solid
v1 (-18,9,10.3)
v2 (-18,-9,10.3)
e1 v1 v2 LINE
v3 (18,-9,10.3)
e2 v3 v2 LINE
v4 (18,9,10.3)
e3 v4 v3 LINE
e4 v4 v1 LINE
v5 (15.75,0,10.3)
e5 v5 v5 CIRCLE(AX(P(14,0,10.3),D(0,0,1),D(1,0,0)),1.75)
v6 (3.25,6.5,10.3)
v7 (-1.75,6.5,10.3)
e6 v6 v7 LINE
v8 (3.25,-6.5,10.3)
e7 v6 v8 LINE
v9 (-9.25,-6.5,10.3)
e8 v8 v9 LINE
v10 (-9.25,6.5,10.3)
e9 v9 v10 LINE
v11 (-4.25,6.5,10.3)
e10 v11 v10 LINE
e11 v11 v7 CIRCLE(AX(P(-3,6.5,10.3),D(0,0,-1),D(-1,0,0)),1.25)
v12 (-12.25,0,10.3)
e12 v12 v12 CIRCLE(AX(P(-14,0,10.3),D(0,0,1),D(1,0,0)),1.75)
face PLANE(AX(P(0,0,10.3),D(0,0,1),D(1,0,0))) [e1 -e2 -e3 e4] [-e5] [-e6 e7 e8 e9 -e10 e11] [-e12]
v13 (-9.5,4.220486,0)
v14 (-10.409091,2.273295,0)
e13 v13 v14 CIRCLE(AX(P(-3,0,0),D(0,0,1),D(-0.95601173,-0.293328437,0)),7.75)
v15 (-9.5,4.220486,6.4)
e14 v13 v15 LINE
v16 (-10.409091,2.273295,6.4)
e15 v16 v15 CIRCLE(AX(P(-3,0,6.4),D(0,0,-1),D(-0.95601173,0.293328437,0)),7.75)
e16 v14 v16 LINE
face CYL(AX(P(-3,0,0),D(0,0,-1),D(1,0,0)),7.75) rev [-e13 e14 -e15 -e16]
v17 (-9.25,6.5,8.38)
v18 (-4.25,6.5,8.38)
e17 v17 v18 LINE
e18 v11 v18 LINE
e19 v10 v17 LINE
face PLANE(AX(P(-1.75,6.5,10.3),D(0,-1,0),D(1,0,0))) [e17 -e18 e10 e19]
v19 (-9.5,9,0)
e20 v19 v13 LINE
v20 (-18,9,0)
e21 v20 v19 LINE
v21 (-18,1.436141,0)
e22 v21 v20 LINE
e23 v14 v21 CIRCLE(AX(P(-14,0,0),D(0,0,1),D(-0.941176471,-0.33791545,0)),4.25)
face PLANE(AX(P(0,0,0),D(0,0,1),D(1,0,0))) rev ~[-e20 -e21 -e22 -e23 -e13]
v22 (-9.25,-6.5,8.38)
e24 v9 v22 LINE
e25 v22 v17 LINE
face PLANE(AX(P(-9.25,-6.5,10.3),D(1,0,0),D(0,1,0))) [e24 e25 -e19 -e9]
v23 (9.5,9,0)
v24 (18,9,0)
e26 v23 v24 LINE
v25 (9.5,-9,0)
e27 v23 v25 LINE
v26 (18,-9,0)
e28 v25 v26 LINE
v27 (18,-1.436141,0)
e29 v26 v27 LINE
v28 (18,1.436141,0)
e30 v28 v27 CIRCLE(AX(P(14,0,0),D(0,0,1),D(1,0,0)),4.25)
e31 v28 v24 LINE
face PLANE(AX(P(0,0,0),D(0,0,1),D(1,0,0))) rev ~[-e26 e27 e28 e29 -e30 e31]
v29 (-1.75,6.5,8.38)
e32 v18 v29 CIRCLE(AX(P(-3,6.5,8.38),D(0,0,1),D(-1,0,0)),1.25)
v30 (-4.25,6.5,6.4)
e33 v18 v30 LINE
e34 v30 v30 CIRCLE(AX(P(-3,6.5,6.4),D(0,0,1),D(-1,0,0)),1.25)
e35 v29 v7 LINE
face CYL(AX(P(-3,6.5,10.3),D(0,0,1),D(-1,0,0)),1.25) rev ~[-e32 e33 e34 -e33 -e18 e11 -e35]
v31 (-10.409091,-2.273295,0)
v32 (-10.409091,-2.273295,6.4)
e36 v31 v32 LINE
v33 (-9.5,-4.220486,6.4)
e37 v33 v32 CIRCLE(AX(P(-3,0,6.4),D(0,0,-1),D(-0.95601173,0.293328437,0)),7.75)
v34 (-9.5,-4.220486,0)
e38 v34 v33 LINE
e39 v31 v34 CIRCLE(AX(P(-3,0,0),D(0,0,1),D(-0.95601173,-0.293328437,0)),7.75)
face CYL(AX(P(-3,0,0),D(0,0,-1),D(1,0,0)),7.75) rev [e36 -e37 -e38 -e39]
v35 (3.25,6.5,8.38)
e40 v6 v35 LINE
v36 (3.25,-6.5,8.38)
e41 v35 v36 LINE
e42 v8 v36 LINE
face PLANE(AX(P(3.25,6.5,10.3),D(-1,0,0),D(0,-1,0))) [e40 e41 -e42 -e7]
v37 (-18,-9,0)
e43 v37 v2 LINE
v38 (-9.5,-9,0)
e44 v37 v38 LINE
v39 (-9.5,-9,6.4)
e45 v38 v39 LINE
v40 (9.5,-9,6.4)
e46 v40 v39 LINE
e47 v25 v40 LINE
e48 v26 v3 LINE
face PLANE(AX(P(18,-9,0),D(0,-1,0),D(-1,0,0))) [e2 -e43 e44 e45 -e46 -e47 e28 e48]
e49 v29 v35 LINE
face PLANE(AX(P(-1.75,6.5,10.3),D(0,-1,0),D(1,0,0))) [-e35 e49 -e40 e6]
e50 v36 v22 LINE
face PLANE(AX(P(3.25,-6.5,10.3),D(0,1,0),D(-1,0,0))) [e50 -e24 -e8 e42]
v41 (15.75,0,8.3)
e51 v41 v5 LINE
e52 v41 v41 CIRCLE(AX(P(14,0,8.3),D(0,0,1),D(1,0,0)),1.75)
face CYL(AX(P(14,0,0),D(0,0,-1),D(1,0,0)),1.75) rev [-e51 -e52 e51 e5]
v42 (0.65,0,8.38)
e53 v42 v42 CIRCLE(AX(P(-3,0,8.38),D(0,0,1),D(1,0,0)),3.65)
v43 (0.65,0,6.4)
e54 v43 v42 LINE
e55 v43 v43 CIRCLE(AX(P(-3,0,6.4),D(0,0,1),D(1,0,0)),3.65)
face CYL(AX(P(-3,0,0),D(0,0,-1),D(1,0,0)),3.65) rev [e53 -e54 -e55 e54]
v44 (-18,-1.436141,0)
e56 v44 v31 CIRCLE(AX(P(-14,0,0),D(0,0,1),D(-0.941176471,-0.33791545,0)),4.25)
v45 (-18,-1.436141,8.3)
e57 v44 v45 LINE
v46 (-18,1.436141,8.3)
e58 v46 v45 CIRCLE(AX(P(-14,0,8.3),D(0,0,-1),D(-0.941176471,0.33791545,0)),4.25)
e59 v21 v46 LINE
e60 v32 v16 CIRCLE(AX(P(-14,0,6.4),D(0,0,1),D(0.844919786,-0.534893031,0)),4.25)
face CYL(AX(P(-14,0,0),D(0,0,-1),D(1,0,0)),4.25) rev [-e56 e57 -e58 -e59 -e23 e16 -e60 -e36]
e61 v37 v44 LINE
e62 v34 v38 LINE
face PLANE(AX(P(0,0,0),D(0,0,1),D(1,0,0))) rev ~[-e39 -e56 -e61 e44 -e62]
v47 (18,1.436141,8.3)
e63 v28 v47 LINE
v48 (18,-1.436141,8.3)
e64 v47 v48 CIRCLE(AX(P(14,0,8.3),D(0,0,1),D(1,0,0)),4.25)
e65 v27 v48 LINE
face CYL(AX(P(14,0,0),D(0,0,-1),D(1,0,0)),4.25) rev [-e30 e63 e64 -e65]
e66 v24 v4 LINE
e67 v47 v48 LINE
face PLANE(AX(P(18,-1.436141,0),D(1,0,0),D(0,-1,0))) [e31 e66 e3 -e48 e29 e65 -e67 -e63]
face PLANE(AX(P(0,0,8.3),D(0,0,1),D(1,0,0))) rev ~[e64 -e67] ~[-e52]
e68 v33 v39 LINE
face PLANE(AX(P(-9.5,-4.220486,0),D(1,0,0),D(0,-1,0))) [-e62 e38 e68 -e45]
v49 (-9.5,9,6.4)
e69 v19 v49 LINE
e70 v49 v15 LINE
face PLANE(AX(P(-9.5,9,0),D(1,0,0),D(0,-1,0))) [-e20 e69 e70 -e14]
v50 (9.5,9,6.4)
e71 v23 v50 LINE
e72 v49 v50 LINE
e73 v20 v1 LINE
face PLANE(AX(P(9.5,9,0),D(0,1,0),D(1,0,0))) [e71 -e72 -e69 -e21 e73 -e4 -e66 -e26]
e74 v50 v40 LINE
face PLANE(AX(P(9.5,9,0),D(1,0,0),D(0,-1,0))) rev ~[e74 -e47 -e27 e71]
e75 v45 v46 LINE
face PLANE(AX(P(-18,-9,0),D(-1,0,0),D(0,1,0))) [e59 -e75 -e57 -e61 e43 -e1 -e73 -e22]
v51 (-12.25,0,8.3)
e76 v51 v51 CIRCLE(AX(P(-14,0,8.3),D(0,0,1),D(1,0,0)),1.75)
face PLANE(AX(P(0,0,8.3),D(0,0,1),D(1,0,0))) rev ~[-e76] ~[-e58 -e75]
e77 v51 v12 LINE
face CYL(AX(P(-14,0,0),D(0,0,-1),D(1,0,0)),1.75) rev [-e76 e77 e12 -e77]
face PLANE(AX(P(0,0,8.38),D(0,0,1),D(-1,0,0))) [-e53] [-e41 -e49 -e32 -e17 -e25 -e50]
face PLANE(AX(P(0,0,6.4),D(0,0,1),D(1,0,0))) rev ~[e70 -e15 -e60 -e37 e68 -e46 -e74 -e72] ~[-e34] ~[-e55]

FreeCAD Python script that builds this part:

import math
import FreeCAD as App
import Part
import Sketcher
from FreeCAD import Vector
Q = App.Units.Quantity


def add_polygon(sketch, points):
    """Adds a closed chain of lines whose ends are joined by coincident constraints."""
    first, n = sketch.GeometryCount, len(points)
    for a, b in zip(points, points[1:] + points[:1]):
        sketch.addGeometry(Part.LineSegment(App.Vector(*a, 0), App.Vector(*b, 0)), False)
    for i in range(n):
        sketch.addConstraint(Sketcher.Constraint("Coincident", first + i, 2, first + (i + 1) % n, 1))

doc = App.newDocument("Part")
params = doc.addObject("Spreadsheet::Sheet", "Params")
for row, (alias, value) in enumerate([
    ("sketch1_diameter", "3.5 mm"),
    ("sketch1_diameter2", "7.3 mm"),
    ("sketch1_width", "36 mm"),
    ("sketch1_height", "18 mm"),
    ("pad1_length", "10.3 mm"),
    ("sketch2_diameter", "3.5 mm"),
    ("sketch2_radius", "4.25 mm"),
    ("sketch2_width", "4 mm"),
    ("pocket1_length", "8.3 mm"),
    ("sketch3_diameter", "7.3 mm"),
    ("sketch3_radius", "7.75 mm"),
    ("sketch3_radius2", "4.25 mm"),
    ("pocket2_length", "6.4 mm"),
    ("sketch4_height", "18 mm"),
    ("sketch4_radius", "7.75 mm"),
    ("sketch4_width", "19 mm"),
    ("pocket3_length", "6.4 mm"),
    ("sketch5_height", "13 mm"),
    ("sketch5_width", "12.5 mm"),
    ("sketch5_diameter", "7.3 mm"),
    ("pocket4_length", "1.92 mm"),
    ("sketch6_diameter", "2.5 mm"),
    ("pocket5_length", "9 mm"),
], start=1):
    params.set(f"A{row}", alias)
    params.set(f"B{row}", "=" + value)
    params.setAlias(f"B{row}", alias)

body = doc.addObject("PartDesign::Body", "Body")

sketch1 = doc.addObject("Sketcher::SketchObject", "Sketch")
body.addObject(sketch1)
sketch1.AttachmentSupport = (doc.XY_Plane, [""])
sketch1.MapMode = "FlatFace"
add_polygon(sketch1, [(18, -9), (18, 9), (-18, 9), (-18, -9)])
sketch1.addGeometry(Part.Circle(Vector(14, 0, 0), Vector(0, 0, 1), 1.8), False)
sketch1.addGeometry(Part.Circle(Vector(-14, 0, 0), Vector(0, 0, 1), 1.8), False)
sketch1.addGeometry(Part.Circle(Vector(-3, 0, 0), Vector(0, 0, 1), 3.6), False)
sketch1.addConstraint(Sketcher.Constraint("Vertical", 0))
sketch1.addConstraint(Sketcher.Constraint("Horizontal", 1))
sketch1.addConstraint(Sketcher.Constraint("Vertical", 2))
sketch1.addConstraint(Sketcher.Constraint("Horizontal", 3))
sketch1.addConstraint(Sketcher.Constraint("Equal", 4, 5))
sketch1.addConstraint(Sketcher.Constraint("Symmetric", 4, 3, 5, 3, -1, 1))
sketch1.addConstraint(Sketcher.Constraint("Symmetric", 0, 2, 2, 2, -1, 1))
sketch1.addConstraint(Sketcher.Constraint("PointOnObject", 4, 3, -1))
sketch1.addConstraint(Sketcher.Constraint("PointOnObject", 6, 3, -1))
sketch1.addConstraint(Sketcher.Constraint("Diameter", 4, Q("3.5 mm")))
sketch1.addConstraint(Sketcher.Constraint("Diameter", 6, Q("7.3 mm")))
sketch1.addConstraint(Sketcher.Constraint("DistanceX", 1, 2, 1, 1, Q("36 mm")))
sketch1.addConstraint(Sketcher.Constraint("DistanceY", 0, 1, 0, 2, Q("18 mm")))
sketch1.addConstraint(Sketcher.Constraint("DistanceX", 5, 3, 6, 3, Q("11 mm")))
sketch1.addConstraint(Sketcher.Constraint("DistanceX", 6, 3, 4, 3, Q("17 mm")))
sketch1.setExpression("Constraints[13]", "Params.sketch1_diameter")
sketch1.setExpression("Constraints[14]", "Params.sketch1_diameter2")
sketch1.setExpression("Constraints[15]", "Params.sketch1_width")
sketch1.setExpression("Constraints[16]", "Params.sketch1_height")
pad1 = doc.addObject("PartDesign::Pad", "Pad")
body.addObject(pad1)
pad1.Profile = sketch1
pad1.setExpression("Length", "Params.pad1_length")

sketch2 = doc.addObject("Sketcher::SketchObject", "Sketch001")
body.addObject(sketch2)
sketch2.AttachmentSupport = (doc.XY_Plane, [""])
sketch2.MapMode = "FlatFace"
sketch2.addGeometry(Part.ArcOfCircle(Part.Circle(Vector(14, 0, 0), Vector(0, 0, 1), 4.2), math.radians(20), math.radians(340)), False)
sketch2.addGeometry(Part.LineSegment(Vector(18, -1.4, 0), Vector(18, 1.4, 0)), False)
sketch2.addGeometry(Part.Circle(Vector(14, 0, 0), Vector(0, 0, 1), 1.8), False)
sketch2.addGeometry(Part.LineSegment(Vector(-18, 1.4, 0), Vector(-18, -1.4, 0)), False)
sketch2.addGeometry(Part.ArcOfCircle(Part.Circle(Vector(-14, 0, 0), Vector(0, 0, 1), 4.2), math.radians(-160), math.radians(160)), False)
sketch2.addGeometry(Part.Circle(Vector(-14, 0, 0), Vector(0, 0, 1), 1.8), False)
sketch2.addConstraint(Sketcher.Constraint("Coincident", 0, 1, 1, 2))
sketch2.addConstraint(Sketcher.Constraint("Coincident", 1, 1, 0, 2))
sketch2.addConstraint(Sketcher.Constraint("Coincident", 3, 1, 4, 2))
sketch2.addConstraint(Sketcher.Constraint("Coincident", 4, 1, 3, 2))
sketch2.addConstraint(Sketcher.Constraint("Vertical", 1))
sketch2.addConstraint(Sketcher.Constraint("Vertical", 3))
sketch2.addConstraint(Sketcher.Constraint("Coincident", 2, 3, 0, 3))
sketch2.addConstraint(Sketcher.Constraint("Coincident", 5, 3, 4, 3))
sketch2.addConstraint(Sketcher.Constraint("Equal", 0, 4))
sketch2.addConstraint(Sketcher.Constraint("Equal", 2, 5))
sketch2.addConstraint(Sketcher.Constraint("Symmetric", 0, 3, 4, 3, -1, 1))
sketch2.addConstraint(Sketcher.Constraint("Symmetric", 0, 1, 3, 1, -2))
sketch2.addConstraint(Sketcher.Constraint("Diameter", 2, Q("3.5 mm")))
sketch2.addConstraint(Sketcher.Constraint("Radius", 0, Q("4.25 mm")))
sketch2.addConstraint(Sketcher.Constraint("DistanceX", -1, 1, 0, 1, Q("18 mm")))
sketch2.addConstraint(Sketcher.Constraint("DistanceX", 0, 3, 0, 1, Q("4 mm")))
sketch2.setExpression("Constraints[12]", "Params.sketch2_diameter")
sketch2.setExpression("Constraints[13]", "Params.sketch2_radius")
sketch2.setExpression("Constraints[15]", "Params.sketch2_width")
pocket1 = doc.addObject("PartDesign::Pocket", "Pocket")
body.addObject(pocket1)
pocket1.Profile = sketch2
pocket1.setExpression("Length", "Params.pocket1_length")
pocket1.Reversed = True

sketch3 = doc.addObject("Sketcher::SketchObject", "Sketch002")
body.addObject(sketch3)
sketch3.AttachmentSupport = (doc.XY_Plane, [""])
sketch3.MapMode = "FlatFace"
sketch3.addGeometry(Part.ArcOfCircle(Part.Circle(Vector(-3, 0, 0), Vector(0, 0, 1), 7.8), math.radians(-163), math.radians(163)), False)
sketch3.addGeometry(Part.ArcOfCircle(Part.Circle(Vector(-14, 0, 0), Vector(0, 0, 1), 4.2), math.radians(-32), math.radians(32)), False)
sketch3.addGeometry(Part.Circle(Vector(-3, 0, 0), Vector(0, 0, 1), 3.6), False)
sketch3.addConstraint(Sketcher.Constraint("Coincident", 0, 1, 1, 1))
sketch3.addConstraint(Sketcher.Constraint("Coincident", 1, 2, 0, 2))
sketch3.addConstraint(Sketcher.Constraint("Coincident", 2, 3, 0, 3))
sketch3.addConstraint(Sketcher.Constraint("Symmetric", 0, 1, 1, 2, -1))
sketch3.addConstraint(Sketcher.Constraint("Diameter", 2, Q("7.3 mm")))
sketch3.addConstraint(Sketcher.Constraint("Radius", 0, Q("7.75 mm")))
sketch3.addConstraint(Sketcher.Constraint("Radius", 1, Q("4.25 mm")))
sketch3.addConstraint(Sketcher.Constraint("DistanceX", 1, 3, 0, 3, Q("11 mm")))
sketch3.addConstraint(Sketcher.Constraint("DistanceX", 0, 3, -1, 1, Q("3 mm")))
sketch3.setExpression("Constraints[4]", "Params.sketch3_diameter")
sketch3.setExpression("Constraints[5]", "Params.sketch3_radius")
sketch3.setExpression("Constraints[6]", "Params.sketch3_radius2")
pocket2 = doc.addObject("PartDesign::Pocket", "Pocket001")
body.addObject(pocket2)
pocket2.Profile = sketch3
pocket2.setExpression("Length", "Params.pocket2_length")
pocket2.Reversed = True

sketch4 = doc.addObject("Sketcher::SketchObject", "Sketch003")
body.addObject(sketch4)
sketch4.AttachmentSupport = (doc.XY_Plane, [""])
sketch4.MapMode = "FlatFace"
sketch4.addGeometry(Part.LineSegment(Vector(-9.5, -9, 0), Vector(9.5, -9, 0)), False)
sketch4.addGeometry(Part.LineSegment(Vector(9.5, -9, 0), Vector(9.5, 9, 0)), False)
sketch4.addGeometry(Part.LineSegment(Vector(9.5, 9, 0), Vector(-9.5, 9, 0)), False)
sketch4.addGeometry(Part.LineSegment(Vector(-9.5, 9, 0), Vector(-9.5, 4.2, 0)), False)
sketch4.addGeometry(Part.ArcOfCircle(Part.Circle(Vector(-3, 0, 0), Vector(0, 0, 1), 7.8), math.radians(-147), math.radians(147)), False)
sketch4.addGeometry(Part.LineSegment(Vector(-9.5, -4.2, 0), Vector(-9.5, -9, 0)), False)
sketch4.addConstraint(Sketcher.Constraint("Coincident", 0, 2, 1, 1))
sketch4.addConstraint(Sketcher.Constraint("Coincident", 1, 2, 2, 1))
sketch4.addConstraint(Sketcher.Constraint("Coincident", 2, 2, 3, 1))
sketch4.addConstraint(Sketcher.Constraint("Coincident", 3, 2, 4, 2))
sketch4.addConstraint(Sketcher.Constraint("Coincident", 4, 1, 5, 1))
sketch4.addConstraint(Sketcher.Constraint("Coincident", 5, 2, 0, 1))
sketch4.addConstraint(Sketcher.Constraint("Horizontal", 0))
sketch4.addConstraint(Sketcher.Constraint("Vertical", 1))
sketch4.addConstraint(Sketcher.Constraint("Horizontal", 2))
sketch4.addConstraint(Sketcher.Constraint("Vertical", 3))
sketch4.addConstraint(Sketcher.Constraint("Vertical", 5))
sketch4.addConstraint(Sketcher.Constraint("Symmetric", 0, 2, 2, 2, -1, 1))
sketch4.addConstraint(Sketcher.Constraint("Symmetric", 3, 2, 4, 1, -1))
sketch4.addConstraint(Sketcher.Constraint("DistanceY", 1, 1, 1, 2, Q("18 mm")))
sketch4.addConstraint(Sketcher.Constraint("Radius", 4, Q("7.75 mm")))
sketch4.addConstraint(Sketcher.Constraint("DistanceX", 4, 3, 0, 2, Q("12.5 mm")))
sketch4.addConstraint(Sketcher.Constraint("DistanceX", 0, 1, 0, 2, Q("19 mm")))
sketch4.setExpression("Constraints[13]", "Params.sketch4_height")
sketch4.setExpression("Constraints[14]", "Params.sketch4_radius")
sketch4.setExpression("Constraints[16]", "Params.sketch4_width")
pocket3 = doc.addObject("PartDesign::Pocket", "Pocket002")
body.addObject(pocket3)
pocket3.Profile = sketch4
pocket3.setExpression("Length", "Params.pocket3_length")
pocket3.Reversed = True

sketch5 = doc.addObject("Sketcher::SketchObject", "Sketch004")
body.addObject(sketch5)
sketch5.AttachmentSupport = (doc.XY_Plane, [""])
sketch5.MapMode = "FlatFace"
sketch5.AttachmentOffset = App.Placement(Vector(0, 0, 10.3), App.Rotation())
add_polygon(sketch5, [(-9.2, -6.5), (3.2, -6.5), (3.2, 6.5), (-9.2, 6.5)])
sketch5.addGeometry(Part.Circle(Vector(-3, 0, 0), Vector(0, 0, 1), 3.6), False)
sketch5.addConstraint(Sketcher.Constraint("Horizontal", 0))
sketch5.addConstraint(Sketcher.Constraint("Vertical", 1))
sketch5.addConstraint(Sketcher.Constraint("Horizontal", 2))
sketch5.addConstraint(Sketcher.Constraint("Vertical", 3))
sketch5.addConstraint(Sketcher.Constraint("PointOnObject", 4, 3, -1))
sketch5.addConstraint(Sketcher.Constraint("DistanceY", 1, 1, 1, 2, Q("13 mm")))
sketch5.addConstraint(Sketcher.Constraint("DistanceX", 0, 1, 0, 2, Q("12.5 mm")))
sketch5.addConstraint(Sketcher.Constraint("Diameter", 4, Q("7.3 mm")))
sketch5.addConstraint(Sketcher.Constraint("DistanceX", 4, 3, -1, 1, Q("3 mm")))
sketch5.addConstraint(Sketcher.Constraint("DistanceY", 0, 2, -1, 1, Q("6.5 mm")))
sketch5.addConstraint(Sketcher.Constraint("DistanceX", -1, 1, 0, 2, Q("3.25 mm")))
sketch5.setExpression("Constraints[9]", "Params.sketch5_height")
sketch5.setExpression("Constraints[10]", "Params.sketch5_width")
sketch5.setExpression("Constraints[11]", "Params.sketch5_diameter")
pocket4 = doc.addObject("PartDesign::Pocket", "Pocket003")
body.addObject(pocket4)
pocket4.Profile = sketch5
pocket4.setExpression("Length", "Params.pocket4_length")

sketch6 = doc.addObject("Sketcher::SketchObject", "Sketch005")
body.addObject(sketch6)
sketch6.AttachmentSupport = (doc.XY_Plane, [""])
sketch6.MapMode = "FlatFace"
sketch6.AttachmentOffset = App.Placement(Vector(0, 0, 10.3), App.Rotation())
sketch6.addGeometry(Part.Circle(Vector(-3, 6.5, 0), Vector(0, 0, 1), 1.2), False)
sketch6.addConstraint(Sketcher.Constraint("Diameter", 0, Q("2.5 mm")))
sketch6.addConstraint(Sketcher.Constraint("DistanceX", 0, 3, -1, 1, Q("3 mm")))
sketch6.addConstraint(Sketcher.Constraint("DistanceY", -1, 1, 0, 3, Q("6.5 mm")))
sketch6.setExpression("Constraints[0]", "Params.sketch6_diameter")
pocket5 = doc.addObject("PartDesign::Pocket", "Pocket004")
body.addObject(pocket5)
pocket5.Profile = sketch6
pocket5.setExpression("Length", "Params.pocket5_length")

doc.recompute()
